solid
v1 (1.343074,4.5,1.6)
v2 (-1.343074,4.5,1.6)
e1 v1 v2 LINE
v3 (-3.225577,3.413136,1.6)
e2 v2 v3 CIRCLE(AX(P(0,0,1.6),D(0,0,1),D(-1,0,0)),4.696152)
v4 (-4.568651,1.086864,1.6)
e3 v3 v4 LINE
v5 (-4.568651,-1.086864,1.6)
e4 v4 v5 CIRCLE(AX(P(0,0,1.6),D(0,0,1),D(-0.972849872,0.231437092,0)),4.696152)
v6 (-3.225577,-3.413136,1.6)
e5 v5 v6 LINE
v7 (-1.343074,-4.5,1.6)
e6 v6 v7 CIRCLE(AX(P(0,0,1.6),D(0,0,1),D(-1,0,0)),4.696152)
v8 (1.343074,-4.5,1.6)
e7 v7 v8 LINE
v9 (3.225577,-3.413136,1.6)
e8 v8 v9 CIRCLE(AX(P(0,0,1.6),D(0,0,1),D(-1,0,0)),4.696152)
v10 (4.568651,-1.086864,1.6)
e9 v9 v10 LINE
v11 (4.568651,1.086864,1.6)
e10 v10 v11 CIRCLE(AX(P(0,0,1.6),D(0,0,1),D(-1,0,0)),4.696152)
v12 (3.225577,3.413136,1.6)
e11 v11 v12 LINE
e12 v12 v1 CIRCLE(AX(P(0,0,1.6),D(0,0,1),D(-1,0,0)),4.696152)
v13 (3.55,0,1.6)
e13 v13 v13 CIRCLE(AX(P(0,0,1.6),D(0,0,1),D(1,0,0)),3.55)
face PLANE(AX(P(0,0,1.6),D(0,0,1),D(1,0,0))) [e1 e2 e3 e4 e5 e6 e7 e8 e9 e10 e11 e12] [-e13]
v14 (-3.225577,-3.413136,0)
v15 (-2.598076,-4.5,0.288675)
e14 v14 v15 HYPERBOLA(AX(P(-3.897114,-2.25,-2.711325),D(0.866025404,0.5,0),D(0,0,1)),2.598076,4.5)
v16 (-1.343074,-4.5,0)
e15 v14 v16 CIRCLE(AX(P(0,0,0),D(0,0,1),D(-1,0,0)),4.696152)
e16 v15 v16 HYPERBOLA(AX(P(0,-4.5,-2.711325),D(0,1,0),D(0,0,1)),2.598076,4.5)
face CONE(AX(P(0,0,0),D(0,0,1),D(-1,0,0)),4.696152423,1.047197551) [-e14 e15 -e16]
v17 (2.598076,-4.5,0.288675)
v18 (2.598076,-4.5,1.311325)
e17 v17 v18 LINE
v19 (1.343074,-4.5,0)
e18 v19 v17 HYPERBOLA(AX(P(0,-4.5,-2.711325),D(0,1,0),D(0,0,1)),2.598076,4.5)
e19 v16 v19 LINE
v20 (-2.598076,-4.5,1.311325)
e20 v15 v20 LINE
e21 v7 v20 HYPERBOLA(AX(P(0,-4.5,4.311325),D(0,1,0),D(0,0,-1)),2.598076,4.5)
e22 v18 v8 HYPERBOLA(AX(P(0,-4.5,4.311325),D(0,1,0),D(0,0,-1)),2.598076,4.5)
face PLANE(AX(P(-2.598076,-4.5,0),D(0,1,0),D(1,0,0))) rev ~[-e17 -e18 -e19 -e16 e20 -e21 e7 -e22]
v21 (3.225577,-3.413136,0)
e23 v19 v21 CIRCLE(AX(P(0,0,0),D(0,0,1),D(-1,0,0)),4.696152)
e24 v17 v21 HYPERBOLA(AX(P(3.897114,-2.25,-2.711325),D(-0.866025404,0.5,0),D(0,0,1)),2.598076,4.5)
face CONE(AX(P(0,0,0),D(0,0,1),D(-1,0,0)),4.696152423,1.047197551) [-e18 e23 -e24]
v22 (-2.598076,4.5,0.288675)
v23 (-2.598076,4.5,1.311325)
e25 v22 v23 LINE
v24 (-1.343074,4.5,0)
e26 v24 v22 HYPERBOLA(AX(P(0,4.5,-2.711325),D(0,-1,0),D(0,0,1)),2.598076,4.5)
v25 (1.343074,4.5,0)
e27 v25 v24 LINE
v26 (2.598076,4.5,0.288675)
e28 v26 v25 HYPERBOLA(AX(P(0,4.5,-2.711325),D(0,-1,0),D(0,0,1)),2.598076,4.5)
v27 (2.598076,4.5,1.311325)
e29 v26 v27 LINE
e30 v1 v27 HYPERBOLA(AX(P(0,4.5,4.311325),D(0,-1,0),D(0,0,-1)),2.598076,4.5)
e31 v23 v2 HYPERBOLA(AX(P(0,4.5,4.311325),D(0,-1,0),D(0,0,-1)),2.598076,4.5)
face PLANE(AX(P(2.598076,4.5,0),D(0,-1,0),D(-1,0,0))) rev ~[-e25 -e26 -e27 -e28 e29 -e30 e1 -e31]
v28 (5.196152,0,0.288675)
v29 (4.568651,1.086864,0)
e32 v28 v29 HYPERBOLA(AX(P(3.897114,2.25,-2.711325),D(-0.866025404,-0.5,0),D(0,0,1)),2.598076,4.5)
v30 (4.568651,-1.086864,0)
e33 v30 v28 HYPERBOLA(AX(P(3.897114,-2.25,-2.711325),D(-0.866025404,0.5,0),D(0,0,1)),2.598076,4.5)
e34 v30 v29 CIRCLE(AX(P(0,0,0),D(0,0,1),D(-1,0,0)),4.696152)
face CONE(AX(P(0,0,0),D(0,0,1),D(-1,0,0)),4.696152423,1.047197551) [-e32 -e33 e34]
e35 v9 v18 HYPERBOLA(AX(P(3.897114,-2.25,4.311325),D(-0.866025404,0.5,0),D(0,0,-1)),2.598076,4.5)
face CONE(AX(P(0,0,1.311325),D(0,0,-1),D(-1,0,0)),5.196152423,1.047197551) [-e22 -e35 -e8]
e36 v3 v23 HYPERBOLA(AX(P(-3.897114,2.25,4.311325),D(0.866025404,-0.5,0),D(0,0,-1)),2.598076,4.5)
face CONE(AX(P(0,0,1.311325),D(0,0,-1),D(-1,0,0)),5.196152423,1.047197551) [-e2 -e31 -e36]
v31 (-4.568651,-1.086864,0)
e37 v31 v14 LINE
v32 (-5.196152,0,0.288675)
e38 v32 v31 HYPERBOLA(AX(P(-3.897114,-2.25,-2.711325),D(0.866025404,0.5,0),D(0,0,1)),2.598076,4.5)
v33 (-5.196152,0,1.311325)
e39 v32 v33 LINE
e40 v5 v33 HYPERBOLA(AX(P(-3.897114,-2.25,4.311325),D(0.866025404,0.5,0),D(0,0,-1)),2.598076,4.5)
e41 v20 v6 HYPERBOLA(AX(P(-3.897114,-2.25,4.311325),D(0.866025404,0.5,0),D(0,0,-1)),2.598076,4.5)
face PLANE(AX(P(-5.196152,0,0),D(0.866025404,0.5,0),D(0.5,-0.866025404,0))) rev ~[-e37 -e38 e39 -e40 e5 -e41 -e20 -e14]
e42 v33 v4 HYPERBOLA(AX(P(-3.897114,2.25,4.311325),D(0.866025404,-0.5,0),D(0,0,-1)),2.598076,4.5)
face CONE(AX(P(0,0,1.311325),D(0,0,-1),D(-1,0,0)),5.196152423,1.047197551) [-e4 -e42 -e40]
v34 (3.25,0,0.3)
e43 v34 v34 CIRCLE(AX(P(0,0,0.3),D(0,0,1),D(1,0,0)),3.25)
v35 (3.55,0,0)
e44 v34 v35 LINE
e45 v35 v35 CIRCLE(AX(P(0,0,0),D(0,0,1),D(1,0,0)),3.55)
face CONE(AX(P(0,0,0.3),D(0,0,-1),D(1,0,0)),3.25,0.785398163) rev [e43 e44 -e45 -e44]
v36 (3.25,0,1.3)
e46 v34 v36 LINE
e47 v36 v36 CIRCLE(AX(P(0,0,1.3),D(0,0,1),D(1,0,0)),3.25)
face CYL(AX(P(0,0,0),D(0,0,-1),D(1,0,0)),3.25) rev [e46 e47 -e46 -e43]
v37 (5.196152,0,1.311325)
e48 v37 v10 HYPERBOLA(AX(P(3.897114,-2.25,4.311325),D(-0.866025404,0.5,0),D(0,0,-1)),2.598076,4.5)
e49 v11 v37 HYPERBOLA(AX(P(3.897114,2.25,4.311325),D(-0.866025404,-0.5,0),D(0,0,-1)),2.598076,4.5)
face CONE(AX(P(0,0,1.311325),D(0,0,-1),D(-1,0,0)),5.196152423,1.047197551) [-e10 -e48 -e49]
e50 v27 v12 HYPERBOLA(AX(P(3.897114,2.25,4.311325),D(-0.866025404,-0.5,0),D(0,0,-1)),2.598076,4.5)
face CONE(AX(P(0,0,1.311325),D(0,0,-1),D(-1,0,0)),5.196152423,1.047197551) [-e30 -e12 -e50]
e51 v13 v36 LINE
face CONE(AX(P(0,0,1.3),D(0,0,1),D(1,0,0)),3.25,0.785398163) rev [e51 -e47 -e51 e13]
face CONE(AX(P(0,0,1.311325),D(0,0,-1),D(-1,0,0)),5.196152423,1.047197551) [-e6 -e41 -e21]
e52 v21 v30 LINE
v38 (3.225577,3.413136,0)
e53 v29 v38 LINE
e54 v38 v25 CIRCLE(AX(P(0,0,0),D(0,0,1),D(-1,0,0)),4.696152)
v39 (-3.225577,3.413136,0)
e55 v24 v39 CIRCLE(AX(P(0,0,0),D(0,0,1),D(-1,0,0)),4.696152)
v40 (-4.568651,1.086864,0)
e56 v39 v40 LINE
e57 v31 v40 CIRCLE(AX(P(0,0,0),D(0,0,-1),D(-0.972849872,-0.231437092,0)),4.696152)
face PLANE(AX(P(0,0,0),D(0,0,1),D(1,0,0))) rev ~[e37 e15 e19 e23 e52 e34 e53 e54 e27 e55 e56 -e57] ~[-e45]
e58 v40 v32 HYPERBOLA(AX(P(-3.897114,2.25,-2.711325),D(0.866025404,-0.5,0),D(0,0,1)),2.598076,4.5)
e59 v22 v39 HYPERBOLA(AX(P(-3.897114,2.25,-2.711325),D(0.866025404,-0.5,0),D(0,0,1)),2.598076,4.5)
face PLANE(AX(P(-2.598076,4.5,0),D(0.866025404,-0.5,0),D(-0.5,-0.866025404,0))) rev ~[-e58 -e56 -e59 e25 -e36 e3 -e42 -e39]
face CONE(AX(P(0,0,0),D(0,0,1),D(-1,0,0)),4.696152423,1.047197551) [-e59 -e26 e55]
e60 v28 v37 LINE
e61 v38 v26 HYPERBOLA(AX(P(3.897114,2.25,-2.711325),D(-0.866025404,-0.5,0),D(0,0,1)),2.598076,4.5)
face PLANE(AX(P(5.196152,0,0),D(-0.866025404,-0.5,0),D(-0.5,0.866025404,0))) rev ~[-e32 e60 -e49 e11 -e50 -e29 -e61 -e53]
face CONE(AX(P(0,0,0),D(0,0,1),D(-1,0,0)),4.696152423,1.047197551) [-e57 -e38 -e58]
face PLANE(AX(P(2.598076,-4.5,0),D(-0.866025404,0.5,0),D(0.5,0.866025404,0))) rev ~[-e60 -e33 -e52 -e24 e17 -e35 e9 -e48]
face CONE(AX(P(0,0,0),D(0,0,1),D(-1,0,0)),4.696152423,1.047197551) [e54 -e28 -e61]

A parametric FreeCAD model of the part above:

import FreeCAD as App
import Part
import Sketcher
from FreeCAD import Vector
Q = App.Units.Quantity


def edges_at(feature, points):
    """Names of the edges that pass closest to the given points."""
    edges = feature.Shape.Edges
    near = lambda p: min(range(len(edges)), key=lambda i: edges[i].distToShape(Part.Vertex(*p))[0])
    return sorted({f"Edge{near(p) + 1}" for p in points})

doc = App.newDocument("Part")
body = doc.addObject("PartDesign::Body", "Body")

# Sketch on XY plane
sketch1 = body.newObject("Sketcher::SketchObject", "Sketch")
sketch1.AttachmentSupport = (doc.getObject("XY_Plane"), [""])
sketch1.MapMode = "FlatFace"
sketch1.addGeometry(Part.LineSegment(Vector(5.196152, 0, 0), Vector(2.598076, 4.5, 0)), False)
sketch1.addGeometry(Part.LineSegment(Vector(2.598076, 4.5, 0), Vector(-2.598076, 4.5, 0)), False)
sketch1.addGeometry(Part.LineSegment(Vector(-2.598076, 4.5, 0), Vector(-5.196152, 0, 0)), False)
sketch1.addGeometry(Part.LineSegment(Vector(-5.196152, 0, 0), Vector(-2.598076, -4.5, 0)), False)
sketch1.addGeometry(Part.LineSegment(Vector(-2.598076, -4.5, 0), Vector(2.598076, -4.5, 0)), False)
sketch1.addGeometry(Part.LineSegment(Vector(2.598076, -4.5, 0), Vector(5.196152, 0, 0)), False)
sketch1.addGeometry(Part.Circle(Vector(0, 0, 0), Vector(0, 0, 1), 3.25), False)
sketch1.addConstraint(Sketcher.Constraint("Coincident", 0, 2, 1, 1))
sketch1.addConstraint(Sketcher.Constraint("Coincident", 1, 2, 2, 1))
sketch1.addConstraint(Sketcher.Constraint("Coincident", 2, 2, 3, 1))
sketch1.addConstraint(Sketcher.Constraint("Coincident", 3, 2, 4, 1))
sketch1.addConstraint(Sketcher.Constraint("Coincident", 4, 2, 5, 1))
sketch1.addConstraint(Sketcher.Constraint("Coincident", 5, 2, 0, 1))
sketch1.addConstraint(Sketcher.Constraint("Horizontal", 1))
sketch1.addConstraint(Sketcher.Constraint("Horizontal", 4))
sketch1.addConstraint(Sketcher.Constraint("Coincident", 6, 3, -1, 1))
sketch1.addConstraint(Sketcher.Constraint("Symmetric", 0, 2, 3, 2, -1, 1))
sketch1.addConstraint(Sketcher.Constraint("Symmetric", 2, 2, 5, 2, -1, 1))
sketch1.addConstraint(Sketcher.Constraint("PointOnObject", 2, 2, -1))
sketch1.addConstraint(Sketcher.Constraint("Parallel", 2, 5))
sketch1.addConstraint(Sketcher.Constraint("Vertical", 1, 2, 3, 2))
sketch1.addConstraint(Sketcher.Constraint("Diameter", 6, Q("6.5 mm")))
sketch1.addConstraint(Sketcher.Constraint("Angle", 0, Q("120 deg")))
sketch1.addConstraint(Sketcher.Constraint("DistanceY", 3, 2, 1, 2, Q("9 mm")))
sketch1.addConstraint(Sketcher.Constraint("DistanceX", 1, 2, 1, 1, Q("5.196152 mm")))
pad1 = body.newObject("PartDesign::Pad", "Pad")
pad1.Profile = sketch1
pad1.Length = 1.6

# Sketch on XZ plane
sketch2 = body.newObject("Sketcher::SketchObject", "Sketch001")
sketch2.AttachmentSupport = (doc.getObject("XZ_Plane"), [""])
sketch2.MapMode = "FlatFace"
sketch2.addGeometry(Part.LineSegment(Vector(-5.196152, 0.288675, 0), Vector(-4.696152, 0, 0)), False)
sketch2.addGeometry(Part.LineSegment(Vector(-4.696152, 0, 0), Vector(-6.196152, 0, 0)), False)
sketch2.addGeometry(Part.LineSegment(Vector(-6.196152, 0, 0), Vector(-6.196152, 1.6, 0)), False)
sketch2.addGeometry(Part.LineSegment(Vector(-6.196152, 1.6, 0), Vector(-4.696152, 1.6, 0)), False)
sketch2.addGeometry(Part.LineSegment(Vector(-4.696152, 1.6, 0), Vector(-5.196152, 1.311325, 0)), False)
sketch2.addGeometry(Part.LineSegment(Vector(-5.196152, 1.311325, 0), Vector(-5.196152, 0.288675, 0)), False)
sketch2.addConstraint(Sketcher.Constraint("Coincident", 0, 2, 1, 1))
sketch2.addConstraint(Sketcher.Constraint("Coincident", 1, 2, 2, 1))
sketch2.addConstraint(Sketcher.Constraint("Coincident", 2, 2, 3, 1))
sketch2.addConstraint(Sketcher.Constraint("Coincident", 3, 2, 4, 1))
sketch2.addConstraint(Sketcher.Constraint("Coincident", 4, 2, 5, 1))
sketch2.addConstraint(Sketcher.Constraint("Coincident", 5, 2, 0, 1))
sketch2.addConstraint(Sketcher.Constraint("Horizontal", 1))
sketch2.addConstraint(Sketcher.Constraint("Vertical", 2))
sketch2.addConstraint(Sketcher.Constraint("Horizontal", 3))
sketch2.addConstraint(Sketcher.Constraint("Vertical", 5))
sketch2.addConstraint(Sketcher.Constraint("PointOnObject", 0, 2, -1))
sketch2.addConstraint(Sketcher.Constraint("Vertical", 0, 2, 3, 2))
sketch2.addConstraint(Sketcher.Constraint("Equal", 0, 4))
sketch2.addConstraint(Sketcher.Constraint("Angle", 0, Q("-30 deg")))
sketch2.addConstraint(Sketcher.Constraint("DistanceX", 1, 2, 1, 1, Q("1.5 mm")))
sketch2.addConstraint(Sketcher.Constraint("DistanceY", 2, 1, 2, 2, Q("1.6 mm")))
sketch2.addConstraint(Sketcher.Constraint("DistanceX", 2, 2, 4, 2, Q("1 mm")))
sketch2.addConstraint(Sketcher.Constraint("DistanceX", 0, 2, -1, 1, Q("4.696152 mm")))
groove = body.newObject("PartDesign::Groove", "Groove")
groove.Profile = sketch2
groove.ReferenceAxis = (sketch2, ["V_Axis"])
groove.Angle = 360
doc.recompute()

chamfer = body.newObject("PartDesign::Chamfer", "Chamfer")
chamfer.Base = (groove, edges_at(groove, [(-3.25, 0, 0), (-3.25, 0, 1.6)]))
chamfer.Size = 0.3

doc.recompute()
